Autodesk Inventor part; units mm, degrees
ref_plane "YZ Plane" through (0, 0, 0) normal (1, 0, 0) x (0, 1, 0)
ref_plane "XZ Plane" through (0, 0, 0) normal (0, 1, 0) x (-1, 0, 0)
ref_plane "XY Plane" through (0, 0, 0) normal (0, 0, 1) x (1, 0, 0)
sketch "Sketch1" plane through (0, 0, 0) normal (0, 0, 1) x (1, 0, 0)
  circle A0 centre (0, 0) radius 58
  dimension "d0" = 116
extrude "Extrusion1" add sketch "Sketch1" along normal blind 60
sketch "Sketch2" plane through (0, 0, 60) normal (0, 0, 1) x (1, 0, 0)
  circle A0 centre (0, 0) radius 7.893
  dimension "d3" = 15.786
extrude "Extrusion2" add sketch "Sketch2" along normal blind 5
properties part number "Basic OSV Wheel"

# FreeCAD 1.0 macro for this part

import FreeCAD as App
import Part
import Sketcher
Q = App.Units.Quantity

doc = App.newDocument("Part")
body = doc.addObject("PartDesign::Body", "Body")

# Sketch on XY plane
sketch1 = doc.addObject("Sketcher::SketchObject", "Sketch")
body.addObject(sketch1)
sketch1.AttachmentSupport = (doc.XY_Plane, [""])
sketch1.MapMode = "FlatFace"
sketch1.addGeometry(Part.Circle(App.Vector(0, 0, 0), App.Vector(0, 0, 1), 58), False)
sketch1.addConstraint([
    Sketcher.Constraint("Coincident", 0, 3, -1, 1),
    Sketcher.Constraint("Diameter", 0, Q("116 mm")),
])
pad1 = doc.addObject("PartDesign::Pad", "Pad")
body.addObject(pad1)
pad1.Profile = sketch1
pad1.Length = 60

# Sketch on XY plane
sketch2 = doc.addObject("Sketcher::SketchObject", "Sketch001")
body.addObject(sketch2)
sketch2.AttachmentSupport = (doc.XY_Plane, [""])
sketch2.MapMode = "FlatFace"
sketch2.AttachmentOffset = App.Placement(App.Vector(0, 0, 60), App.Rotation())
sketch2.addGeometry(Part.Circle(App.Vector(0, 0, 0), App.Vector(0, 0, 1), 8), False)
sketch2.addConstraint([
    Sketcher.Constraint("Coincident", 0, 3, -1, 1),
    Sketcher.Constraint("Diameter", 0, Q("15.786 mm")),
])
pad2 = doc.addObject("PartDesign::Pad", "Pad001")
body.addObject(pad2)
pad2.Profile = sketch2
pad2.Length = 5

doc.recompute()
